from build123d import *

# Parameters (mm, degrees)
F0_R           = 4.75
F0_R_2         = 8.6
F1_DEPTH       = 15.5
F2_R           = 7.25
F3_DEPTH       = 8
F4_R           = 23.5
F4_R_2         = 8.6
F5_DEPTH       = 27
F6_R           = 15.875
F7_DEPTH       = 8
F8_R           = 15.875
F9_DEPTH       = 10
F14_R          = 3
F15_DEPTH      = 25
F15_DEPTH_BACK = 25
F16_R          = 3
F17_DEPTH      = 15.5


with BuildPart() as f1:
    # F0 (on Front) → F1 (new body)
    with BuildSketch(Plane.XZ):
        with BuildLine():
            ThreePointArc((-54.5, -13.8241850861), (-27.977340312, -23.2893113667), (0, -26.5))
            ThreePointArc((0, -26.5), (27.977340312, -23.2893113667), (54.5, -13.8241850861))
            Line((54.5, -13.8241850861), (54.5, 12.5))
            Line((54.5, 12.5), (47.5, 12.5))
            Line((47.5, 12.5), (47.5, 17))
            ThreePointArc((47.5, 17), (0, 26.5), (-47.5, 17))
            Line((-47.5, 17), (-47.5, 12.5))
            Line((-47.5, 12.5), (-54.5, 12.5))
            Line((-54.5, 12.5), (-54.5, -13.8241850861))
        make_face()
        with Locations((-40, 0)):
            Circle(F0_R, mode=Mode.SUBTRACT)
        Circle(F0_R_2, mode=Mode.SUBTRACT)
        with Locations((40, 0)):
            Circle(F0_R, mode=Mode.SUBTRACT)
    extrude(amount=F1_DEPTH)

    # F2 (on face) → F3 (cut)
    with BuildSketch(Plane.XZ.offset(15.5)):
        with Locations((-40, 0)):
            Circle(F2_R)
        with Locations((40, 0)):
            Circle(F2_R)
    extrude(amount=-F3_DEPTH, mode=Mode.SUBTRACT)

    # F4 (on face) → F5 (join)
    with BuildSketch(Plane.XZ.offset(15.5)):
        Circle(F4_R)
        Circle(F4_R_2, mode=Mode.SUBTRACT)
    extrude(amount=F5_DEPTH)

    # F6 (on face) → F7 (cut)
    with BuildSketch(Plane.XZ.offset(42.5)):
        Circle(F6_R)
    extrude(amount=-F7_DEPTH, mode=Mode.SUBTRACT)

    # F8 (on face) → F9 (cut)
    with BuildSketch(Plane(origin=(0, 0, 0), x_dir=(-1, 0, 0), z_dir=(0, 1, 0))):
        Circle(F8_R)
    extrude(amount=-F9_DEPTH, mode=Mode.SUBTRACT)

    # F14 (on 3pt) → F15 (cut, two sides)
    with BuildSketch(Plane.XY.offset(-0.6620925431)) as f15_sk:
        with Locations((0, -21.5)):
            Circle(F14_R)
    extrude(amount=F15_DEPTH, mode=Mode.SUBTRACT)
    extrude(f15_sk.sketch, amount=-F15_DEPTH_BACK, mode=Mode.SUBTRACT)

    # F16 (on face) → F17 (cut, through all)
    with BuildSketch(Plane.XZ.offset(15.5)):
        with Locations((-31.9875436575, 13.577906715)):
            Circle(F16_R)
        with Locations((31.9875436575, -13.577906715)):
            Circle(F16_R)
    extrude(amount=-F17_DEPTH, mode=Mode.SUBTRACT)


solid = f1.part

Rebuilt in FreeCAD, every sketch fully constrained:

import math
import FreeCAD as App
import Part
import Sketcher
from FreeCAD import Vector
Q = App.Units.Quantity

doc = App.newDocument("Part")
body = doc.addObject("PartDesign::Body", "Body")

# Sketch on XZ plane
sketch1 = body.newObject("Sketcher::SketchObject", "Sketch")
sketch1.AttachmentSupport = (doc.getObject("XZ_Plane"), [""])
sketch1.MapMode = "FlatFace"
sketch1.addGeometry(Part.ArcOfCircle(Part.Circle(Vector(0, 97, 0), Vector(0, 0, 1), 123.5), math.radians(-116.186571), math.radians(-90)), False)
sketch1.addGeometry(Part.ArcOfCircle(Part.Circle(Vector(0, 97, 0), Vector(0, 0, 1), 123.5), math.radians(-90), math.radians(-63.813429)), False)
sketch1.addGeometry(Part.LineSegment(Vector(54.5, -13.824185, 0), Vector(54.5, 12.5, 0)), False)
sketch1.addGeometry(Part.LineSegment(Vector(54.5, 12.5, 0), Vector(47.5, 12.5, 0)), False)
sketch1.addGeometry(Part.LineSegment(Vector(47.5, 12.5, 0), Vector(47.5, 17, 0)), False)
sketch1.addGeometry(Part.ArcOfCircle(Part.Circle(Vector(0, -97, 0), Vector(0, 0, 1), 123.5), math.radians(67.380135), math.radians(112.619865)), False)
sketch1.addGeometry(Part.LineSegment(Vector(-47.5, 17, 0), Vector(-47.5, 12.5, 0)), False)
sketch1.addGeometry(Part.LineSegment(Vector(-47.5, 12.5, 0), Vector(-54.5, 12.5, 0)), False)
sketch1.addGeometry(Part.LineSegment(Vector(-54.5, 12.5, 0), Vector(-54.5, -13.824185, 0)), False)
sketch1.addGeometry(Part.Circle(Vector(-40, 0, 0), Vector(0, 0, 1), 4.75), False)
sketch1.addGeometry(Part.Circle(Vector(0, 0, 0), Vector(0, 0, 1), 8.6), False)
sketch1.addGeometry(Part.Circle(Vector(40, 0, 0), Vector(0, 0, 1), 4.75), False)
sketch1.addConstraint(Sketcher.Constraint("Tangent", 0, 2, 1, 1))
sketch1.addConstraint(Sketcher.Constraint("Coincident", 1, 2, 2, 1))
sketch1.addConstraint(Sketcher.Constraint("Coincident", 2, 2, 3, 1))
sketch1.addConstraint(Sketcher.Constraint("Coincident", 3, 2, 4, 1))
sketch1.addConstraint(Sketcher.Constraint("Coincident", 4, 2, 5, 1))
sketch1.addConstraint(Sketcher.Constraint("Coincident", 5, 2, 6, 1))
sketch1.addConstraint(Sketcher.Constraint("Coincident", 6, 2, 7, 1))
sketch1.addConstraint(Sketcher.Constraint("Coincident", 7, 2, 8, 1))
sketch1.addConstraint(Sketcher.Constraint("Coincident", 8, 2, 0, 1))
sketch1.addConstraint(Sketcher.Constraint("Vertical", 2))
sketch1.addConstraint(Sketcher.Constraint("Horizontal", 3))
sketch1.addConstraint(Sketcher.Constraint("Vertical", 4))
sketch1.addConstraint(Sketcher.Constraint("Vertical", 6))
sketch1.addConstraint(Sketcher.Constraint("Horizontal", 7))
sketch1.addConstraint(Sketcher.Constraint("Vertical", 8))
sketch1.addConstraint(Sketcher.Constraint("Coincident", 10, 3, -1, 1))
sketch1.addConstraint(Sketcher.Constraint("Equal", 0, 1))
sketch1.addConstraint(Sketcher.Constraint("Equal", 1, 5))
sketch1.addConstraint(Sketcher.Constraint("Equal", 9, 11))
sketch1.addConstraint(Sketcher.Constraint("Symmetric", 0, 3, 5, 3, -1, 1))
sketch1.addConstraint(Sketcher.Constraint("Symmetric", 9, 3, 11, 3, -1, 1))
sketch1.addConstraint(Sketcher.Constraint("Symmetric", 4, 2, 5, 2, -2))
sketch1.addConstraint(Sketcher.Constraint("Symmetric", 2, 2, 7, 2, -2))
sketch1.addConstraint(Sketcher.Constraint("PointOnObject", 9, 3, -1))
sketch1.addConstraint(Sketcher.Constraint("PointOnObject", 0, 2, -2))
sketch1.addConstraint(Sketcher.Constraint("Diameter", 9, Q("9.5 mm")))
sketch1.addConstraint(Sketcher.Constraint("Diameter", 10, Q("17.2 mm")))
sketch1.addConstraint(Sketcher.Constraint("Radius", 0, Q("123.5 mm")))
sketch1.addConstraint(Sketcher.Constraint("DistanceX", 3, 2, 3, 1, Q("7 mm")))
sketch1.addConstraint(Sketcher.Constraint("DistanceY", 4, 1, 4, 2, Q("4.5 mm")))
sketch1.addConstraint(Sketcher.Constraint("DistanceY", -1, 1, 0, 3, Q("97 mm")))
sketch1.addConstraint(Sketcher.Constraint("DistanceX", 9, 3, -1, 1, Q("40 mm")))
sketch1.addConstraint(Sketcher.Constraint("DistanceY", -1, 1, 4, 2, Q("17 mm")))
pad1 = body.newObject("PartDesign::Pad", "Pad")
pad1.Profile = sketch1
pad1.Length = 15.5

# Sketch on XZ plane
sketch2 = body.newObject("Sketcher::SketchObject", "Sketch001")
sketch2.AttachmentSupport = (doc.getObject("XZ_Plane"), [""])
sketch2.MapMode = "FlatFace"
sketch2.AttachmentOffset = App.Placement(Vector(0, 0, 15.5), App.Rotation())
sketch2.addGeometry(Part.Circle(Vector(-40, 0, 0), Vector(0, 0, 1), 7.25), False)
sketch2.addGeometry(Part.Circle(Vector(40, 0, 0), Vector(0, 0, 1), 7.25), False)
sketch2.addConstraint(Sketcher.Constraint("Equal", 0, 1))
sketch2.addConstraint(Sketcher.Constraint("Symmetric", 0, 3, 1, 3, -1, 1))
sketch2.addConstraint(Sketcher.Constraint("PointOnObject", 0, 3, -1))
sketch2.addConstraint(Sketcher.Constraint("Diameter", 0, Q("14.5 mm")))
sketch2.addConstraint(Sketcher.Constraint("DistanceX", 0, 3, -1, 1, Q("40 mm")))
pocket1 = body.newObject("PartDesign::Pocket", "Pocket")
pocket1.Profile = sketch2
pocket1.Length = 8

# Sketch on XZ plane
sketch3 = body.newObject("Sketcher::SketchObject", "Sketch002")
sketch3.AttachmentSupport = (doc.getObject("XZ_Plane"), [""])
sketch3.MapMode = "FlatFace"
sketch3.AttachmentOffset = App.Placement(Vector(0, 0, 15.5), App.Rotation())
sketch3.addGeometry(Part.Circle(Vector(0, 0, 0), Vector(0, 0, 1), 23.5), False)
sketch3.addGeometry(Part.Circle(Vector(0, 0, 0), Vector(0, 0, 1), 8.6), False)
sketch3.addConstraint(Sketcher.Constraint("Coincident", 0, 3, -1, 1))
sketch3.addConstraint(Sketcher.Constraint("Coincident", 1, 3, -1, 1))
sketch3.addConstraint(Sketcher.Constraint("Diameter", 0, Q("47 mm")))
sketch3.addConstraint(Sketcher.Constraint("Diameter", 1, Q("17.2 mm")))
pad2 = body.newObject("PartDesign::Pad", "Pad001")
pad2.Profile = sketch3
pad2.Length = 27

# Sketch on XZ plane
sketch4 = body.newObject("Sketcher::SketchObject", "Sketch003")
sketch4.AttachmentSupport = (doc.getObject("XZ_Plane"), [""])
sketch4.MapMode = "FlatFace"
sketch4.AttachmentOffset = App.Placement(Vector(0, 0, 42.5), App.Rotation())
sketch4.addGeometry(Part.Circle(Vector(0, 0, 0), Vector(0, 0, 1), 15.875), False)
sketch4.addConstraint(Sketcher.Constraint("Coincident", 0, 3, -1, 1))
sketch4.addConstraint(Sketcher.Constraint("Diameter", 0, Q("31.75 mm")))
pocket2 = body.newObject("PartDesign::Pocket", "Pocket001")
pocket2.Profile = sketch4
pocket2.Length = 8

# Sketch on XZ plane
sketch5 = body.newObject("Sketcher::SketchObject", "Sketch004")
sketch5.AttachmentSupport = (doc.getObject("XZ_Plane"), [""])
sketch5.MapMode = "FlatFace"
sketch5.addGeometry(Part.Circle(Vector(0, 0, 0), Vector(0, 0, 1), 15.875), False)
sketch5.addConstraint(Sketcher.Constraint("Coincident", 0, 3, -1, 1))
sketch5.addConstraint(Sketcher.Constraint("Diameter", 0, Q("31.75 mm")))
pocket3 = body.newObject("PartDesign::Pocket", "Pocket002")
pocket3.Profile = sketch5
pocket3.Length = 10
pocket3.Reversed = True

# Sketch on XY plane
sketch6 = body.newObject("Sketcher::SketchObject", "Sketch005")
sketch6.AttachmentSupport = (doc.getObject("XY_Plane"), [""])
sketch6.MapMode = "FlatFace"
sketch6.AttachmentOffset = App.Placement(Vector(0, 0, -0.662093), App.Rotation())
sketch6.addGeometry(Part.Circle(Vector(0, -21.5, 0), Vector(0, 0, 1), 3), False)
sketch6.addConstraint(Sketcher.Constraint("PointOnObject", 0, 3, -2))
sketch6.addConstraint(Sketcher.Constraint("Diameter", 0, Q("6 mm")))
sketch6.addConstraint(Sketcher.Constraint("DistanceY", 0, 3, -1, 1, Q("21.5 mm")))
pocket4 = body.newObject("PartDesign::Pocket", "Pocket003")
pocket4.Profile = sketch6
pocket4.Type = "ThroughAll"
pocket4.Midplane = True

# Sketch on XZ plane
sketch7 = body.newObject("Sketcher::SketchObject", "Sketch006")
sketch7.AttachmentSupport = (doc.getObject("XZ_Plane"), [""])
sketch7.MapMode = "FlatFace"
sketch7.AttachmentOffset = App.Placement(Vector(0, 0, 15.5), App.Rotation())
sketch7.addGeometry(Part.Circle(Vector(-31.987544, 13.577907, 0), Vector(0, 0, 1), 3), False)
sketch7.addGeometry(Part.Circle(Vector(31.987544, -13.577907, 0), Vector(0, 0, 1), 3), False)
sketch7.addConstraint(Sketcher.Constraint("Equal", 0, 1))
sketch7.addConstraint(Sketcher.Constraint("Symmetric", 0, 3, 1, 3, -1, 1))
sketch7.addConstraint(Sketcher.Constraint("Diameter", 0, Q("6 mm")))
sketch7.addConstraint(Sketcher.Constraint("DistanceX", 0, 3, -1, 1, Q("31.987544 mm")))
sketch7.addConstraint(Sketcher.Constraint("DistanceY", -1, 1, 0, 3, Q("13.577907 mm")))
pocket5 = body.newObject("PartDesign::Pocket", "Pocket004")
pocket5.Profile = sketch7
pocket5.Type = "ThroughAll"

doc.recompute()
